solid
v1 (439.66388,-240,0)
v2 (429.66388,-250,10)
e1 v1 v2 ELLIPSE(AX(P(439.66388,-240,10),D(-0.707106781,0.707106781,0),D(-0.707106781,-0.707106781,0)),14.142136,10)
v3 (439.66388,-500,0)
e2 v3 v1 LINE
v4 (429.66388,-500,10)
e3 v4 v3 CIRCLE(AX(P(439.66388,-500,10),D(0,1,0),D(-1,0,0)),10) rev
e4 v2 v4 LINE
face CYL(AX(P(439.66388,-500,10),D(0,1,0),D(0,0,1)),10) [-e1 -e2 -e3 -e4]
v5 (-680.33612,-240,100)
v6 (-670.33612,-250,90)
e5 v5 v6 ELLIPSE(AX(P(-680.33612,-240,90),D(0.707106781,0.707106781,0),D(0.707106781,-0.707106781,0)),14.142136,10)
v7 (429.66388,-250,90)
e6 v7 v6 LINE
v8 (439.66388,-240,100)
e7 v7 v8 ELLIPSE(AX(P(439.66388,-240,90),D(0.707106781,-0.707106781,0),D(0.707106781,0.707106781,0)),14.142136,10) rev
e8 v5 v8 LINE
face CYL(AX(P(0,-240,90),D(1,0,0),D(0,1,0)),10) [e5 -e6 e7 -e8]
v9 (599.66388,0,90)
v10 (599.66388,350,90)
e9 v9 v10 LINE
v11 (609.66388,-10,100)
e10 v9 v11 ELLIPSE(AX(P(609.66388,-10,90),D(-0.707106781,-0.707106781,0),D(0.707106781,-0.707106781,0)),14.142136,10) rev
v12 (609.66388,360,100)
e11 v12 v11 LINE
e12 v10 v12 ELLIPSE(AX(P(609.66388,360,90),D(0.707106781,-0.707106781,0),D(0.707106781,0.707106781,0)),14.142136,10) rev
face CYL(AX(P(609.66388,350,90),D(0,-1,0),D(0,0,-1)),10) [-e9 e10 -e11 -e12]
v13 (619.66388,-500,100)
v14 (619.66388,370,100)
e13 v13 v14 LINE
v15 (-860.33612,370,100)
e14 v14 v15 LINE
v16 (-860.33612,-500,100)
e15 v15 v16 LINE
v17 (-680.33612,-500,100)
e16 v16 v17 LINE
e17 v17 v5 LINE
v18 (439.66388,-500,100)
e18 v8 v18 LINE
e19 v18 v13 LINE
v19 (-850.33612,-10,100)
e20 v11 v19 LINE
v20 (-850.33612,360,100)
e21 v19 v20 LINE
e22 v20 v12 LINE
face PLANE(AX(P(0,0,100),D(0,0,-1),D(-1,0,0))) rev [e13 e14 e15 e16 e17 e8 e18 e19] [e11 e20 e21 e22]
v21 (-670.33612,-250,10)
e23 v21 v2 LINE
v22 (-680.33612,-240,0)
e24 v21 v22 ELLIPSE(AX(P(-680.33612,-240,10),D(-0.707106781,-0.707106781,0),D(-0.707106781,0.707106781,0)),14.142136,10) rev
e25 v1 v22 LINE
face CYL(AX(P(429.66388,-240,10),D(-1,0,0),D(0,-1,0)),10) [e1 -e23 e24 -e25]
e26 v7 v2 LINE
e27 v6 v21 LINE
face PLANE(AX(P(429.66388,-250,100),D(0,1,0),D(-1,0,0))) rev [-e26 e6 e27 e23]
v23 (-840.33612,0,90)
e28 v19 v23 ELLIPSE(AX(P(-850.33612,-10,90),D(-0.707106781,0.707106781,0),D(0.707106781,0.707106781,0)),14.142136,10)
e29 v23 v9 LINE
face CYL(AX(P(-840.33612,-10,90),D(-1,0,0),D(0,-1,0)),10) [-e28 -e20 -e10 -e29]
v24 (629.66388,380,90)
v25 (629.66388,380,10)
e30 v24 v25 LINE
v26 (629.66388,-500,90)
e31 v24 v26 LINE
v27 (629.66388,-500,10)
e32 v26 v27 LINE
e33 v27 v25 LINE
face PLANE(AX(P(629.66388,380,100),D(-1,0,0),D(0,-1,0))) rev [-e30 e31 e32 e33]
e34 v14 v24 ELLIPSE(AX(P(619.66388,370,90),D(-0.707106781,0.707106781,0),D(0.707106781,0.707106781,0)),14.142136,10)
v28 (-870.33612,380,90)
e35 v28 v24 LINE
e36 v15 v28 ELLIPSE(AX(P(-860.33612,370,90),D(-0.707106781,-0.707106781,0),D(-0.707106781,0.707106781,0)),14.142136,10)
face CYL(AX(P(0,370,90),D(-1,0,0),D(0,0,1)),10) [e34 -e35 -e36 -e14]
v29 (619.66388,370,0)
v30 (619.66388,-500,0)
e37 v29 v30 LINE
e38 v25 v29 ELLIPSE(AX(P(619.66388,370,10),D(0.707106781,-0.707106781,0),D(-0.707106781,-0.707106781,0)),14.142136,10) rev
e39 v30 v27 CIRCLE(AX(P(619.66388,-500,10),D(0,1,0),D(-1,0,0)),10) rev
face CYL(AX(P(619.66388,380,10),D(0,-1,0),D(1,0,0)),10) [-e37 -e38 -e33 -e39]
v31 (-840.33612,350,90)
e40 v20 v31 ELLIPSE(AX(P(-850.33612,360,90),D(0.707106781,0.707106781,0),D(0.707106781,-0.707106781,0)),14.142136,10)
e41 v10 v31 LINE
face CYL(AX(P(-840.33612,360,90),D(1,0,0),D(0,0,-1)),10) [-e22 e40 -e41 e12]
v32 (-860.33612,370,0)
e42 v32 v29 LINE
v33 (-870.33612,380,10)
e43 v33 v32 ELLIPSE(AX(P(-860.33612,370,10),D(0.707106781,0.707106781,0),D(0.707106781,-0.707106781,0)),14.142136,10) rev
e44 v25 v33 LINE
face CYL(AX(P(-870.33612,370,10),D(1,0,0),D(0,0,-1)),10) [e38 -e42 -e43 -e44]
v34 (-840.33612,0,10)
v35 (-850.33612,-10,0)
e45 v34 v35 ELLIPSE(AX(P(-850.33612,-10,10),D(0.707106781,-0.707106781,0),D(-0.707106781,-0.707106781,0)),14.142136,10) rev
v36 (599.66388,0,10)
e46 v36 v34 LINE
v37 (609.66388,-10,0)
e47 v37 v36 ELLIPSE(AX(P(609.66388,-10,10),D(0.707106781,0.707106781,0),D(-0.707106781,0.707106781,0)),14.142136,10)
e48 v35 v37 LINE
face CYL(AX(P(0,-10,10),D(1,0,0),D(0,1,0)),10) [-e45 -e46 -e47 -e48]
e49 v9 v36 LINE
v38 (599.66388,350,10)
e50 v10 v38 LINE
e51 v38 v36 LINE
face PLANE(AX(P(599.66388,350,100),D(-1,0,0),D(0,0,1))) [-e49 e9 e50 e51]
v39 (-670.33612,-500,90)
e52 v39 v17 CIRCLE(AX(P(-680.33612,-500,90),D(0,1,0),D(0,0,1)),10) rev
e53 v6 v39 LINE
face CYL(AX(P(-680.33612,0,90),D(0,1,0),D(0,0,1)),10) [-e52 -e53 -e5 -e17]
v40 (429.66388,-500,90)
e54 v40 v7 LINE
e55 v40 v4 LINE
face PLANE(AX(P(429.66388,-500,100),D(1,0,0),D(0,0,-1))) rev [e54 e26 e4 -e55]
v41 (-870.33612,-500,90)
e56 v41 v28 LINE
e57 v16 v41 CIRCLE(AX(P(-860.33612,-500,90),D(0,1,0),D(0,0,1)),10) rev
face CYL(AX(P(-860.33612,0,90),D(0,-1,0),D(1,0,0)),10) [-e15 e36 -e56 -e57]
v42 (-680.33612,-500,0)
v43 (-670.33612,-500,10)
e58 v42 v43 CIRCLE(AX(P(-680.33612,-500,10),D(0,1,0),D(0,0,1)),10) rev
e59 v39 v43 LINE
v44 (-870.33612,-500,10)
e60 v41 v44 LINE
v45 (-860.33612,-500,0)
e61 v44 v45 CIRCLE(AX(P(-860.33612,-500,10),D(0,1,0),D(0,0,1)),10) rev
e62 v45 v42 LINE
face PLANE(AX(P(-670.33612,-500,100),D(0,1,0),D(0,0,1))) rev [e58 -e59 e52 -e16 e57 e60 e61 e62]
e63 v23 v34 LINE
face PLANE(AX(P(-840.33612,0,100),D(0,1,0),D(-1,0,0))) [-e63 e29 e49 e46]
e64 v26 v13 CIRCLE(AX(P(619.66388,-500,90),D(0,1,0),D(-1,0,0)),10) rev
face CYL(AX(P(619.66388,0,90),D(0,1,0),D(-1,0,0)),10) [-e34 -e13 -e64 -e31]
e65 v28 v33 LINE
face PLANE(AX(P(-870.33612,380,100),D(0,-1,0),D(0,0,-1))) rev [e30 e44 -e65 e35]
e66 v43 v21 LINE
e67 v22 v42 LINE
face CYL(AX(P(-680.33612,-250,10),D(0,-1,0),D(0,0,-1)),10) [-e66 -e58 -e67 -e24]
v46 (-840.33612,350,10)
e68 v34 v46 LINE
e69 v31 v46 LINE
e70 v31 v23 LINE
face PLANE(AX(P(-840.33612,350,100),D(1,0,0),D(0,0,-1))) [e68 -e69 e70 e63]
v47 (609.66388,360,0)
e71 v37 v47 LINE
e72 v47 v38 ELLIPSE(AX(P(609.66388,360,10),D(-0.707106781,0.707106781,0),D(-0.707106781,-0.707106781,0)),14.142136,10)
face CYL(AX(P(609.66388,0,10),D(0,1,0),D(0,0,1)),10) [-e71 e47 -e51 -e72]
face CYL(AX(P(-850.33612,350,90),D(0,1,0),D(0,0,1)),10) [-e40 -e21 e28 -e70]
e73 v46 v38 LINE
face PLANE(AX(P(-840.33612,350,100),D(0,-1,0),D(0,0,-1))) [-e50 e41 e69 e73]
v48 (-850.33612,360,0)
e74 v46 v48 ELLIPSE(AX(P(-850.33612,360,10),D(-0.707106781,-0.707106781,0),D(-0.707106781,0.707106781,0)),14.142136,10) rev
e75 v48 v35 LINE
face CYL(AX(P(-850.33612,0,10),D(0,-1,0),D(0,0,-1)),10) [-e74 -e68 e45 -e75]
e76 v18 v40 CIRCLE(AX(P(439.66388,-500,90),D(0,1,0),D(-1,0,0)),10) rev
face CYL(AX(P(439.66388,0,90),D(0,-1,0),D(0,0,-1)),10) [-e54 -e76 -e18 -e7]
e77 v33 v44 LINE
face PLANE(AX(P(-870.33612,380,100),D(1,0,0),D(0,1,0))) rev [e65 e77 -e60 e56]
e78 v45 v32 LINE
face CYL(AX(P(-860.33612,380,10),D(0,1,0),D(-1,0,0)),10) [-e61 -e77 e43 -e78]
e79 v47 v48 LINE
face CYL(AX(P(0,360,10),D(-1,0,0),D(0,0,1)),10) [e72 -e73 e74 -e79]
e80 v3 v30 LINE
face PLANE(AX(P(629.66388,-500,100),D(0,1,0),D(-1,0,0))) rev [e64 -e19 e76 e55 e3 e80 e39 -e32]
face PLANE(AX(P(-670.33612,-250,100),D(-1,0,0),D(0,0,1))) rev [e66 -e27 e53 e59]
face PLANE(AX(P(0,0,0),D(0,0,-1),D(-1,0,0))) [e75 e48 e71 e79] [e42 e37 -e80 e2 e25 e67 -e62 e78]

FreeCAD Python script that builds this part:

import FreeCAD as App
import Part
import Sketcher
from FreeCAD import Vector


def edges_at(feature, points):
    """Names of the edges that pass closest to the given points."""
    edges = feature.Shape.Edges
    near = lambda p: min(range(len(edges)), key=lambda i: edges[i].distToShape(Part.Vertex(*p))[0])
    return sorted({f"Edge{near(p) + 1}" for p in points})


def add_polygon(sketch, points):
    """Adds a closed chain of lines whose ends are joined by coincident constraints."""
    first, n = sketch.GeometryCount, len(points)
    for a, b in zip(points, points[1:] + points[:1]):
        sketch.addGeometry(Part.LineSegment(App.Vector(*a, 0), App.Vector(*b, 0)), False)
    for i in range(n):
        sketch.addConstraint(Sketcher.Constraint("Coincident", first + i, 2, first + (i + 1) % n, 1))

doc = App.newDocument("Part")
body = doc.addObject("PartDesign::Body", "Body")

sketch1 = body.newObject("Sketcher::SketchObject", "Sketch")
sketch1.AttachmentSupport = (doc.getObject("XY_Plane"), [""])
sketch1.MapMode = "FlatFace"
add_polygon(sketch1, [(430, -500), (630, -500), (630, 380), (-870, 380), (-870, -500), (-670, -500), (-670, -250), (430, -250)])
add_polygon(sketch1, [(-840, 0), (-840, 350), (600, 350), (600, 0)])
sketch1.addConstraint(Sketcher.Constraint("Horizontal", 0))
sketch1.addConstraint(Sketcher.Constraint("Vertical", 1))
sketch1.addConstraint(Sketcher.Constraint("Horizontal", 2))
sketch1.addConstraint(Sketcher.Constraint("Vertical", 3))
sketch1.addConstraint(Sketcher.Constraint("Horizontal", 4))
sketch1.addConstraint(Sketcher.Constraint("Vertical", 5))
sketch1.addConstraint(Sketcher.Constraint("Horizontal", 6))
sketch1.addConstraint(Sketcher.Constraint("Vertical", 7))
sketch1.addConstraint(Sketcher.Constraint("Vertical", 8))
sketch1.addConstraint(Sketcher.Constraint("Horizontal", 9))
sketch1.addConstraint(Sketcher.Constraint("Vertical", 10))
sketch1.addConstraint(Sketcher.Constraint("Horizontal", 11))
sketch1.addConstraint(Sketcher.Constraint("PointOnObject", 10, 2, -1))
sketch1.addConstraint(Sketcher.Constraint("Horizontal", 0, 2, 3, 2))
sketch1.addConstraint(Sketcher.Constraint("Equal", 0, 4))
sketch1.addConstraint(Sketcher.Constraint("DistanceX", 0, 1, 0, 2, 200.0))
sketch1.addConstraint(Sketcher.Constraint("DistanceX", 2, 2, 2, 1, 1500.0))
sketch1.addConstraint(Sketcher.Constraint("DistanceX", 9, 1, 9, 2, 1440.0))
sketch1.addConstraint(Sketcher.Constraint("DistanceY", 1, 1, 1, 2, 880.0))
sketch1.addConstraint(Sketcher.Constraint("DistanceY", 5, 1, 5, 2, 250.0))
sketch1.addConstraint(Sketcher.Constraint("DistanceY", 8, 1, 8, 2, 350.0))
sketch1.addConstraint(Sketcher.Constraint("DistanceY", 0, 2, -1, 1, 500.0))
sketch1.addConstraint(Sketcher.Constraint("DistanceX", 2, 2, 8, 2, 30.0))
sketch1.addConstraint(Sketcher.Constraint("DistanceX", -1, 1, 0, 2, 629.66388))
pad1 = body.newObject("PartDesign::Pad", "Pad")
pad1.Profile = sketch1
pad1.Length = 100
doc.recompute()

fillet = body.newObject("PartDesign::Fillet", "Fillet")
fillet.Base = (pad1, edges_at(pad1, [
    (429.664, -375, 0),
    (-120.336, -250, 0),
    (-670.336, -375, 0),
    (429.664, -375, 100),
    (629.664, -60, 100),
    (-840.336, 175, 0),
    (-120.336, 0, 0),
    (-120.336, 380, 100),
    (599.664, 175, 0),
    (-120.336, 350, 0),
    (-840.336, 175, 100),
    (-120.336, 0, 100),
    (599.664, 175, 100),
    (-120.336, 350, 100),
    (-870.336, -60, 100),
    (-670.336, -375, 100),
    (-120.336, -250, 100),
    (-870.336, -60, 0),
    (-120.336, 380, 0),
    (629.664, -60, 0),
]))
fillet.Radius = 10

doc.recompute()
